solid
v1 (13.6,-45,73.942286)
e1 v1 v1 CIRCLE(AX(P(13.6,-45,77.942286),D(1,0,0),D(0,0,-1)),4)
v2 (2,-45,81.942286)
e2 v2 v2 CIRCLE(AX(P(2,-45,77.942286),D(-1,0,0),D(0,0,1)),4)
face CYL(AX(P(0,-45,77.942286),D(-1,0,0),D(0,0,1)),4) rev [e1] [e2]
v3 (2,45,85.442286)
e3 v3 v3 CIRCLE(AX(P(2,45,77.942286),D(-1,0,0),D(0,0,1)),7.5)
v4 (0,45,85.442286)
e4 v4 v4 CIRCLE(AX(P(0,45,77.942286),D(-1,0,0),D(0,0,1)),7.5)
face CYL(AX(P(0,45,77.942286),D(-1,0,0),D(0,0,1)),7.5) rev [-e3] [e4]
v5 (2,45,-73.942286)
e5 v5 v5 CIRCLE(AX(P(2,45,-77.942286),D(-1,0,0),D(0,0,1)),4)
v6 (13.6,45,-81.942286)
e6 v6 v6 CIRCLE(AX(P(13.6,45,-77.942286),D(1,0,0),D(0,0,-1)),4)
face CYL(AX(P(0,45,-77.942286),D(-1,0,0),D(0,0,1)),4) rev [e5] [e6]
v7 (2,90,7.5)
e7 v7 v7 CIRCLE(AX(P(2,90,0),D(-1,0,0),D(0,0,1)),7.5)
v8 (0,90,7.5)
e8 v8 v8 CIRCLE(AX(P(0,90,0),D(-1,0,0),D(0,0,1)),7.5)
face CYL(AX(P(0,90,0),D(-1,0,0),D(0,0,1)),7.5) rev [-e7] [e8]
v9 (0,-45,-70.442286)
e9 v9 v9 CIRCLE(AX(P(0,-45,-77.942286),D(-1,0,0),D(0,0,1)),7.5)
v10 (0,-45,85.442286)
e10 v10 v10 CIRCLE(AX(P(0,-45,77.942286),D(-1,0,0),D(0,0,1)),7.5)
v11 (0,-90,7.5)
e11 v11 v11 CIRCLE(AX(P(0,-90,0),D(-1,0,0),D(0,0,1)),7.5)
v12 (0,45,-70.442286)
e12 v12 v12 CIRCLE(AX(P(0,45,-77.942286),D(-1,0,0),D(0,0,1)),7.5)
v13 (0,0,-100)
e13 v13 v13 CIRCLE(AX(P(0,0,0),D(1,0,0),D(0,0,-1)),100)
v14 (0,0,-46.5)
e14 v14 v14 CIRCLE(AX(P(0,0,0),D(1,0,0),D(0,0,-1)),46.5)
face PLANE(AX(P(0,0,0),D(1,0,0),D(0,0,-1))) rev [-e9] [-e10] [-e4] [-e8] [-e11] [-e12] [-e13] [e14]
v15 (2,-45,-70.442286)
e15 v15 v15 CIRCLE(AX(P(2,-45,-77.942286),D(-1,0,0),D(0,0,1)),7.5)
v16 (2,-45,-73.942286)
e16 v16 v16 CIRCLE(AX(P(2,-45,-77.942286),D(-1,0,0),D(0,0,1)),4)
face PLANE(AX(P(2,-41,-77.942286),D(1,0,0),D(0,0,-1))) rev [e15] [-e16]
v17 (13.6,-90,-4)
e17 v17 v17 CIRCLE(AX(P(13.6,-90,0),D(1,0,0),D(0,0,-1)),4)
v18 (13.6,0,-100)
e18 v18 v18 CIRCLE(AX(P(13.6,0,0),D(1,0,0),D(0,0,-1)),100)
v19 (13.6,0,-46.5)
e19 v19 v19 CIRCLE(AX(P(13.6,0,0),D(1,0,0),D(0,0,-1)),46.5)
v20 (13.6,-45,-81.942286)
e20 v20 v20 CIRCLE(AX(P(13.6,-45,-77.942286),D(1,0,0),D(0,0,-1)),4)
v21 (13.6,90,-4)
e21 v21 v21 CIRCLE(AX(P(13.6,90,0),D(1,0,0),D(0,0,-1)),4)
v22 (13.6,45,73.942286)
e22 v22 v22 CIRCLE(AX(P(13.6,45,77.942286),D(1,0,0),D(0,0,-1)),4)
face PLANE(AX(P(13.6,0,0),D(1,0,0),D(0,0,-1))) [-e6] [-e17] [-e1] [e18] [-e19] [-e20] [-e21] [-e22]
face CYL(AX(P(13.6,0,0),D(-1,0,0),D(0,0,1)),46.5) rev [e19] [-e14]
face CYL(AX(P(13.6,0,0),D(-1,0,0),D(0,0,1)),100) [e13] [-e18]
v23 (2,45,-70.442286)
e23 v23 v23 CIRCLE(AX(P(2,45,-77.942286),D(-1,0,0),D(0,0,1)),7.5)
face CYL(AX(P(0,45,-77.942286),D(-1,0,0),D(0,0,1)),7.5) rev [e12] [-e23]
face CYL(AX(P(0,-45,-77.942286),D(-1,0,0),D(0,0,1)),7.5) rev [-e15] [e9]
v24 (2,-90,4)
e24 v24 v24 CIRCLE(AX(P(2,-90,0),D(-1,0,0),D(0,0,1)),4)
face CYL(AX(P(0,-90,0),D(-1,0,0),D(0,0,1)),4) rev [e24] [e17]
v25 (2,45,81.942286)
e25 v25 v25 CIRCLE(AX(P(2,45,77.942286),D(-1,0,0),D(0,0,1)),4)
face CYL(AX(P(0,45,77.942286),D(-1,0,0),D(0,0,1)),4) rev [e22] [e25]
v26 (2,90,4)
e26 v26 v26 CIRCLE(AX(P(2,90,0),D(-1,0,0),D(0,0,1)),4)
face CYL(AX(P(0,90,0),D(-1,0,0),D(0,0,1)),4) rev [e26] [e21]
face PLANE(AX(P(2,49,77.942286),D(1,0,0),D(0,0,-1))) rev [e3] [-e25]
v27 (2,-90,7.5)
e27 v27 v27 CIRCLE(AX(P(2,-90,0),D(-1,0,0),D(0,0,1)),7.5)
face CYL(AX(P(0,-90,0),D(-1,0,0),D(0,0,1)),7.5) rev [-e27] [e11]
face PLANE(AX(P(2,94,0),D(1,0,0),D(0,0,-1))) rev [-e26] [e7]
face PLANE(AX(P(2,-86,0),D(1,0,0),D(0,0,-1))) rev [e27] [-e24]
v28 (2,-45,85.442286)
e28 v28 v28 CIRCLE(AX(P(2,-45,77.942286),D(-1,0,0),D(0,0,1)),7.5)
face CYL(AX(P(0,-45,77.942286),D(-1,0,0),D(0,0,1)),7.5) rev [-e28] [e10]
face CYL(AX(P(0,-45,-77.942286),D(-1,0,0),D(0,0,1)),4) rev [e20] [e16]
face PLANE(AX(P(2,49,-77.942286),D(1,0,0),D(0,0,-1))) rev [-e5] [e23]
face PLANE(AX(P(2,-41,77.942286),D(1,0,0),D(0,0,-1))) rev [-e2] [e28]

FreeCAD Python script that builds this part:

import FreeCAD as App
import Part
import Sketcher

doc = App.newDocument("Part")
body = doc.addObject("PartDesign::Body", "Body")

sketch1 = body.newObject("Sketcher::SketchObject", "Sketch")
sketch1.AttachmentSupport = (doc.getObject("YZ_Plane"), [""])
sketch1.MapMode = "FlatFace"
sketch1.addGeometry(Part.Circle(App.Vector(0, 0, 0), App.Vector(0, 0, 1), 100), False)
sketch1.addGeometry(Part.Circle(App.Vector(0, 0, 0), App.Vector(0, 0, 1), 46), False)
sketch1.addConstraint(Sketcher.Constraint("Coincident", 0, 3, -1, 1))
sketch1.addConstraint(Sketcher.Constraint("Coincident", 1, 3, -1, 1))
sketch1.addConstraint(Sketcher.Constraint("Diameter", 0, 200.0))
sketch1.addConstraint(Sketcher.Constraint("Diameter", 1, 93.0))
pad1 = body.newObject("PartDesign::Pad", "Pad")
pad1.Profile = sketch1
pad1.Length = 13.6

sketch2 = body.newObject("Sketcher::SketchObject", "Sketch001")
sketch2.AttachmentSupport = (doc.getObject("YZ_Plane"), [""])
sketch2.MapMode = "FlatFace"
sketch2.addGeometry(Part.Circle(App.Vector(45, -77.9, 0), App.Vector(0, 0, 1), 4), False)
sketch2.addGeometry(Part.Circle(App.Vector(90, 0, 0), App.Vector(0, 0, 1), 4), False)
sketch2.addGeometry(Part.Circle(App.Vector(45, 77.9, 0), App.Vector(0, 0, 1), 4), False)
sketch2.addGeometry(Part.Circle(App.Vector(-45, 77.9, 0), App.Vector(0, 0, 1), 4), False)
sketch2.addGeometry(Part.Circle(App.Vector(-90, 0, 0), App.Vector(0, 0, 1), 4), False)
sketch2.addGeometry(Part.Circle(App.Vector(-45, -77.9, 0), App.Vector(0, 0, 1), 4), False)
sketch2.addConstraint(Sketcher.Constraint("Equal", 0, 1))
sketch2.addConstraint(Sketcher.Constraint("Equal", 1, 2))
sketch2.addConstraint(Sketcher.Constraint("Equal", 2, 3))
sketch2.addConstraint(Sketcher.Constraint("Equal", 3, 4))
sketch2.addConstraint(Sketcher.Constraint("Equal", 4, 5))
sketch2.addConstraint(Sketcher.Constraint("Symmetric", 0, 3, 3, 3, -1, 1))
sketch2.addConstraint(Sketcher.Constraint("Symmetric", 1, 3, 4, 3, -1, 1))
sketch2.addConstraint(Sketcher.Constraint("Symmetric", 2, 3, 5, 3, -1, 1))
sketch2.addConstraint(Sketcher.Constraint("Symmetric", 2, 3, 3, 3, -2))
sketch2.addConstraint(Sketcher.Constraint("PointOnObject", 1, 3, -1))
sketch2.addConstraint(Sketcher.Constraint("Diameter", 0, 8.0))
sketch2.addConstraint(Sketcher.Constraint("DistanceX", -1, 1, 0, 3, 45.0))
sketch2.addConstraint(Sketcher.Constraint("DistanceX", -1, 1, 1, 3, 90.0))
sketch2.addConstraint(Sketcher.Constraint("DistanceY", 0, 3, -1, 1, 77.942286))
doc.recompute()
hole = body.newObject("PartDesign::Hole", "Hole")
hole.Profile = sketch2
hole.ThreadType = "None"
hole.Diameter = 8
hole.DepthType = "Dimension"
hole.Depth = 15
hole.DrillPoint = "Angled"
hole.DrillPointAngle = 118
hole.HoleCutType = "Counterbore"
hole.HoleCutDiameter = 15
hole.HoleCutDepth = 2
hole.Reversed = True

doc.recompute()
